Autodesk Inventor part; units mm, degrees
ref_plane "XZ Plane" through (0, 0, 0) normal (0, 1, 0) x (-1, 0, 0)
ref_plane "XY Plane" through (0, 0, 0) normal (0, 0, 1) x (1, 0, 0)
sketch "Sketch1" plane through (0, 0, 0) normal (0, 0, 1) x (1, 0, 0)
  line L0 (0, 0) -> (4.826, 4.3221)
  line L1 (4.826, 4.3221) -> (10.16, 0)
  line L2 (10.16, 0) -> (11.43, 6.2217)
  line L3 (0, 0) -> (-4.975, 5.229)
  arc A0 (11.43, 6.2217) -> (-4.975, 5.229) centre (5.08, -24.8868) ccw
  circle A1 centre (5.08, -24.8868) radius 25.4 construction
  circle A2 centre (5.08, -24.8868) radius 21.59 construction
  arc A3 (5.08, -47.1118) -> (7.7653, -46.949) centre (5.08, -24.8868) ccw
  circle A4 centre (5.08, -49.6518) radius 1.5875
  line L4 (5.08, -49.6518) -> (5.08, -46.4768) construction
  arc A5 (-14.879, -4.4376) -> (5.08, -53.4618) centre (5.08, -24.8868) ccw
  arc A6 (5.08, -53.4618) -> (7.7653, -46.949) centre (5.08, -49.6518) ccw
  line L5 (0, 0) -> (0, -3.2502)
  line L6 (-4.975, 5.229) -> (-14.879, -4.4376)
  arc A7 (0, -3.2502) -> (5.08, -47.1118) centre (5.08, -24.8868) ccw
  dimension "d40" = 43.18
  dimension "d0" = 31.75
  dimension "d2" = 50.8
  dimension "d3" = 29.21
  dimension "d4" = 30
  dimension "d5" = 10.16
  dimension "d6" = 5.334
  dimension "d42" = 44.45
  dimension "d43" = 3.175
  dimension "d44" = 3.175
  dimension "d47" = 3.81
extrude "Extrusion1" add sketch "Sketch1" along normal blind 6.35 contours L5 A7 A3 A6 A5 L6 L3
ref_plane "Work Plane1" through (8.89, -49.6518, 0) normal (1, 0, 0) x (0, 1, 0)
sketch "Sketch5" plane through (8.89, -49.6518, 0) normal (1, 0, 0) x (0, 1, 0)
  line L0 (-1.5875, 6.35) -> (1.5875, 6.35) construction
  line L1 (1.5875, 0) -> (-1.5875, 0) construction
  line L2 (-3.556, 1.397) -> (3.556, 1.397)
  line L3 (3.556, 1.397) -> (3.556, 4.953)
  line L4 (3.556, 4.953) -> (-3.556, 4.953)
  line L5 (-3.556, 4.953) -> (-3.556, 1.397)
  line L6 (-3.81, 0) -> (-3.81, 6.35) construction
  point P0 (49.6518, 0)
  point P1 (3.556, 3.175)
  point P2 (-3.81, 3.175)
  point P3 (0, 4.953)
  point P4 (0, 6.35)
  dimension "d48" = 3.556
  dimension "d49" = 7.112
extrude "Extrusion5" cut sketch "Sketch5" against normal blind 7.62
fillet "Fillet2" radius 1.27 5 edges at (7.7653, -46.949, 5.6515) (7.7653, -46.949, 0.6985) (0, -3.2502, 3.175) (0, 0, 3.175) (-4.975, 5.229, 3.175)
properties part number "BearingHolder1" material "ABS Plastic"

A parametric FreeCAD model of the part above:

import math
import FreeCAD as App
import Part
import Sketcher

V = App.Vector
Q = App.Units.Quantity


def edges_at(feature, points):
    """Names of the edges that pass closest to the given points."""
    edges = feature.Shape.Edges
    near = lambda p: min(range(len(edges)), key=lambda i: edges[i].distToShape(Part.Vertex(*p))[0])
    return sorted({f"Edge{near(p) + 1}" for p in points})


def add_polygon(sketch, points):
    """Adds a closed chain of lines whose ends are joined by coincident constraints."""
    first, n = sketch.GeometryCount, len(points)
    for a, b in zip(points, points[1:] + points[:1]):
        sketch.addGeometry(Part.LineSegment(App.Vector(*a, 0), App.Vector(*b, 0)), False)
    for i in range(n):
        sketch.addConstraint(Sketcher.Constraint("Coincident", first + i, 2, first + (i + 1) % n, 1))

doc = App.newDocument("Part")
body = doc.addObject("PartDesign::Body", "Body")

# Sketch on XY plane
sketch1 = body.newObject("Sketcher::SketchObject", "Sketch")
sketch1.AttachmentSupport = (doc.getObject("XY_Plane"), [""])
sketch1.MapMode = "FlatFace"
sketch1.addGeometry(Part.LineSegment(V(0, -3.2502, 0), V(0, 0, 0)), False)
sketch1.addGeometry(Part.LineSegment(V(0, 0, 0), V(-4.975, 5.229, 0)), False)
sketch1.addGeometry(Part.LineSegment(V(-4.975, 5.229, 0), V(-14.879, -4.4376, 0)), False)
sketch1.addGeometry(Part.ArcOfCircle(Part.Circle(V(5.08, -24.8868, 0), V(0, 0, 1), 28.575015), math.radians(134.304967), math.radians(270)), False)
sketch1.addGeometry(Part.ArcOfCircle(Part.Circle(V(5.08, -49.6518, 0), V(0, 0, 1), 3.81), math.radians(-90), math.radians(45.18609)), False)
sketch1.addGeometry(Part.ArcOfCircle(Part.Circle(V(5.079836, -24.881399, 0), V(0, 0, 1), 22.230401), math.radians(-89.999578), math.radians(-83.061644)), False)
sketch1.addGeometry(Part.ArcOfCircle(Part.Circle(V(5.08, -24.8868, 0), V(0, 0, 1), 22.225), math.radians(103.213004), math.radians(270)), False)
sketch1.addGeometry(Part.Circle(V(5.08, -49.6518, 0), V(0, 0, 1), 1.5875), False)
sketch1.addConstraint(Sketcher.Constraint("Coincident", 0, 2, 1, 1))
sketch1.addConstraint(Sketcher.Constraint("Coincident", 1, 2, 2, 1))
sketch1.addConstraint(Sketcher.Constraint("Coincident", 2, 2, 3, 1))
sketch1.addConstraint(Sketcher.Constraint("Coincident", 3, 2, 4, 1))
sketch1.addConstraint(Sketcher.Constraint("Coincident", 4, 2, 5, 2))
sketch1.addConstraint(Sketcher.Constraint("Coincident", 5, 1, 6, 2))
sketch1.addConstraint(Sketcher.Constraint("Coincident", 6, 1, 0, 1))
sketch1.addConstraint(Sketcher.Constraint("Vertical", 0))
sketch1.addConstraint(Sketcher.Constraint("Coincident", 0, 2, -1, 1))
sketch1.addConstraint(Sketcher.Constraint("Coincident", 6, 3, 3, 3))
sketch1.addConstraint(Sketcher.Constraint("Coincident", 7, 3, 4, 3))
sketch1.addConstraint(Sketcher.Constraint("Radius", 4, Q("0.15 in")))
sketch1.addConstraint(Sketcher.Constraint("Diameter", 7, Q("0.125 in")))
sketch1.addConstraint(Sketcher.Constraint("Radius", 6, Q("0.875 in")))
sketch1.addConstraint(Sketcher.Constraint("Radius", 3, Q("1.125 in")))
sketch1.addConstraint(Sketcher.Constraint("DistanceX", 5, 3, 3, 3, Q("0 in")))
sketch1.addConstraint(Sketcher.Constraint("DistanceX", 5, 3, 4, 3, Q("0 in")))
sketch1.addConstraint(Sketcher.Constraint("DistanceX", 5, 3, 3, 2, Q("0 in")))
sketch1.addConstraint(Sketcher.Constraint("DistanceX", -1, 1, 3, 3, Q("0.2 in")))
sketch1.addConstraint(Sketcher.Constraint("DistanceX", -1, 1, 5, 1, Q("0.2 in")))
sketch1.addConstraint(Sketcher.Constraint("Radius", 5, Q("22.2304 mm")))
sketch1.addConstraint(Sketcher.Constraint("DistanceY", 0, 1, 0, 2, Q("3.2502 mm")))
sketch1.addConstraint(Sketcher.Constraint("DistanceY", 2, 2, -1, 1, Q("0.1747 in")))
sketch1.addConstraint(Sketcher.Constraint("Distance", 1, Q("7.2176 mm")))
sketch1.addConstraint(Sketcher.Constraint("Distance", 2, Q("13.8395 mm")))
pad1 = body.newObject("PartDesign::Pad", "Pad")
pad1.Profile = sketch1
pad1.Length = Q("0.25 in")

# Sketch on YZ plane
sketch2 = body.newObject("Sketcher::SketchObject", "Sketch001")
sketch2.AttachmentSupport = (doc.getObject("YZ_Plane"), [""])
sketch2.MapMode = "FlatFace"
sketch2.AttachmentOffset = App.Placement(V(0, 0, 0.35 * 25.4), App.Rotation())
add_polygon(sketch2, [(-53.2078, 4.953), (-53.2078, 1.397), (-46.0958, 1.397), (-46.0958, 4.953)])  # lines 0-3
sketch2.addConstraint(Sketcher.Constraint("Vertical", 0))
sketch2.addConstraint(Sketcher.Constraint("Horizontal", 1))
sketch2.addConstraint(Sketcher.Constraint("Vertical", 2))
sketch2.addConstraint(Sketcher.Constraint("Horizontal", 3))
sketch2.addConstraint(Sketcher.Constraint("DistanceX", 1, 1, 1, 2, Q("0.28 in")))
sketch2.addConstraint(Sketcher.Constraint("DistanceY", 0, 2, 0, 1, Q("0.14 in")))
sketch2.addConstraint(Sketcher.Constraint("DistanceY", -1, 1, 0, 2, Q("0.055 in")))
sketch2.addConstraint(Sketcher.Constraint("DistanceX", 0, 2, -1, 1, Q("2.0948 in")))
pocket1 = body.newObject("PartDesign::Pocket", "Pocket")
pocket1.Profile = sketch2
pocket1.Length = Q("0.3 in")
doc.recompute()

fillet = body.newObject("PartDesign::Fillet", "Fillet")
fillet.Base = (pocket1, edges_at(pocket1, [
    (7.765, -46.949, 5.652),
    (7.765, -46.949, 0.699),
    (0, -3.25, 3.175),
    (0, 0, 3.175),
    (-4.975, 5.229, 3.175),
]))
fillet.Radius = Q("0.05 in")

doc.recompute()
